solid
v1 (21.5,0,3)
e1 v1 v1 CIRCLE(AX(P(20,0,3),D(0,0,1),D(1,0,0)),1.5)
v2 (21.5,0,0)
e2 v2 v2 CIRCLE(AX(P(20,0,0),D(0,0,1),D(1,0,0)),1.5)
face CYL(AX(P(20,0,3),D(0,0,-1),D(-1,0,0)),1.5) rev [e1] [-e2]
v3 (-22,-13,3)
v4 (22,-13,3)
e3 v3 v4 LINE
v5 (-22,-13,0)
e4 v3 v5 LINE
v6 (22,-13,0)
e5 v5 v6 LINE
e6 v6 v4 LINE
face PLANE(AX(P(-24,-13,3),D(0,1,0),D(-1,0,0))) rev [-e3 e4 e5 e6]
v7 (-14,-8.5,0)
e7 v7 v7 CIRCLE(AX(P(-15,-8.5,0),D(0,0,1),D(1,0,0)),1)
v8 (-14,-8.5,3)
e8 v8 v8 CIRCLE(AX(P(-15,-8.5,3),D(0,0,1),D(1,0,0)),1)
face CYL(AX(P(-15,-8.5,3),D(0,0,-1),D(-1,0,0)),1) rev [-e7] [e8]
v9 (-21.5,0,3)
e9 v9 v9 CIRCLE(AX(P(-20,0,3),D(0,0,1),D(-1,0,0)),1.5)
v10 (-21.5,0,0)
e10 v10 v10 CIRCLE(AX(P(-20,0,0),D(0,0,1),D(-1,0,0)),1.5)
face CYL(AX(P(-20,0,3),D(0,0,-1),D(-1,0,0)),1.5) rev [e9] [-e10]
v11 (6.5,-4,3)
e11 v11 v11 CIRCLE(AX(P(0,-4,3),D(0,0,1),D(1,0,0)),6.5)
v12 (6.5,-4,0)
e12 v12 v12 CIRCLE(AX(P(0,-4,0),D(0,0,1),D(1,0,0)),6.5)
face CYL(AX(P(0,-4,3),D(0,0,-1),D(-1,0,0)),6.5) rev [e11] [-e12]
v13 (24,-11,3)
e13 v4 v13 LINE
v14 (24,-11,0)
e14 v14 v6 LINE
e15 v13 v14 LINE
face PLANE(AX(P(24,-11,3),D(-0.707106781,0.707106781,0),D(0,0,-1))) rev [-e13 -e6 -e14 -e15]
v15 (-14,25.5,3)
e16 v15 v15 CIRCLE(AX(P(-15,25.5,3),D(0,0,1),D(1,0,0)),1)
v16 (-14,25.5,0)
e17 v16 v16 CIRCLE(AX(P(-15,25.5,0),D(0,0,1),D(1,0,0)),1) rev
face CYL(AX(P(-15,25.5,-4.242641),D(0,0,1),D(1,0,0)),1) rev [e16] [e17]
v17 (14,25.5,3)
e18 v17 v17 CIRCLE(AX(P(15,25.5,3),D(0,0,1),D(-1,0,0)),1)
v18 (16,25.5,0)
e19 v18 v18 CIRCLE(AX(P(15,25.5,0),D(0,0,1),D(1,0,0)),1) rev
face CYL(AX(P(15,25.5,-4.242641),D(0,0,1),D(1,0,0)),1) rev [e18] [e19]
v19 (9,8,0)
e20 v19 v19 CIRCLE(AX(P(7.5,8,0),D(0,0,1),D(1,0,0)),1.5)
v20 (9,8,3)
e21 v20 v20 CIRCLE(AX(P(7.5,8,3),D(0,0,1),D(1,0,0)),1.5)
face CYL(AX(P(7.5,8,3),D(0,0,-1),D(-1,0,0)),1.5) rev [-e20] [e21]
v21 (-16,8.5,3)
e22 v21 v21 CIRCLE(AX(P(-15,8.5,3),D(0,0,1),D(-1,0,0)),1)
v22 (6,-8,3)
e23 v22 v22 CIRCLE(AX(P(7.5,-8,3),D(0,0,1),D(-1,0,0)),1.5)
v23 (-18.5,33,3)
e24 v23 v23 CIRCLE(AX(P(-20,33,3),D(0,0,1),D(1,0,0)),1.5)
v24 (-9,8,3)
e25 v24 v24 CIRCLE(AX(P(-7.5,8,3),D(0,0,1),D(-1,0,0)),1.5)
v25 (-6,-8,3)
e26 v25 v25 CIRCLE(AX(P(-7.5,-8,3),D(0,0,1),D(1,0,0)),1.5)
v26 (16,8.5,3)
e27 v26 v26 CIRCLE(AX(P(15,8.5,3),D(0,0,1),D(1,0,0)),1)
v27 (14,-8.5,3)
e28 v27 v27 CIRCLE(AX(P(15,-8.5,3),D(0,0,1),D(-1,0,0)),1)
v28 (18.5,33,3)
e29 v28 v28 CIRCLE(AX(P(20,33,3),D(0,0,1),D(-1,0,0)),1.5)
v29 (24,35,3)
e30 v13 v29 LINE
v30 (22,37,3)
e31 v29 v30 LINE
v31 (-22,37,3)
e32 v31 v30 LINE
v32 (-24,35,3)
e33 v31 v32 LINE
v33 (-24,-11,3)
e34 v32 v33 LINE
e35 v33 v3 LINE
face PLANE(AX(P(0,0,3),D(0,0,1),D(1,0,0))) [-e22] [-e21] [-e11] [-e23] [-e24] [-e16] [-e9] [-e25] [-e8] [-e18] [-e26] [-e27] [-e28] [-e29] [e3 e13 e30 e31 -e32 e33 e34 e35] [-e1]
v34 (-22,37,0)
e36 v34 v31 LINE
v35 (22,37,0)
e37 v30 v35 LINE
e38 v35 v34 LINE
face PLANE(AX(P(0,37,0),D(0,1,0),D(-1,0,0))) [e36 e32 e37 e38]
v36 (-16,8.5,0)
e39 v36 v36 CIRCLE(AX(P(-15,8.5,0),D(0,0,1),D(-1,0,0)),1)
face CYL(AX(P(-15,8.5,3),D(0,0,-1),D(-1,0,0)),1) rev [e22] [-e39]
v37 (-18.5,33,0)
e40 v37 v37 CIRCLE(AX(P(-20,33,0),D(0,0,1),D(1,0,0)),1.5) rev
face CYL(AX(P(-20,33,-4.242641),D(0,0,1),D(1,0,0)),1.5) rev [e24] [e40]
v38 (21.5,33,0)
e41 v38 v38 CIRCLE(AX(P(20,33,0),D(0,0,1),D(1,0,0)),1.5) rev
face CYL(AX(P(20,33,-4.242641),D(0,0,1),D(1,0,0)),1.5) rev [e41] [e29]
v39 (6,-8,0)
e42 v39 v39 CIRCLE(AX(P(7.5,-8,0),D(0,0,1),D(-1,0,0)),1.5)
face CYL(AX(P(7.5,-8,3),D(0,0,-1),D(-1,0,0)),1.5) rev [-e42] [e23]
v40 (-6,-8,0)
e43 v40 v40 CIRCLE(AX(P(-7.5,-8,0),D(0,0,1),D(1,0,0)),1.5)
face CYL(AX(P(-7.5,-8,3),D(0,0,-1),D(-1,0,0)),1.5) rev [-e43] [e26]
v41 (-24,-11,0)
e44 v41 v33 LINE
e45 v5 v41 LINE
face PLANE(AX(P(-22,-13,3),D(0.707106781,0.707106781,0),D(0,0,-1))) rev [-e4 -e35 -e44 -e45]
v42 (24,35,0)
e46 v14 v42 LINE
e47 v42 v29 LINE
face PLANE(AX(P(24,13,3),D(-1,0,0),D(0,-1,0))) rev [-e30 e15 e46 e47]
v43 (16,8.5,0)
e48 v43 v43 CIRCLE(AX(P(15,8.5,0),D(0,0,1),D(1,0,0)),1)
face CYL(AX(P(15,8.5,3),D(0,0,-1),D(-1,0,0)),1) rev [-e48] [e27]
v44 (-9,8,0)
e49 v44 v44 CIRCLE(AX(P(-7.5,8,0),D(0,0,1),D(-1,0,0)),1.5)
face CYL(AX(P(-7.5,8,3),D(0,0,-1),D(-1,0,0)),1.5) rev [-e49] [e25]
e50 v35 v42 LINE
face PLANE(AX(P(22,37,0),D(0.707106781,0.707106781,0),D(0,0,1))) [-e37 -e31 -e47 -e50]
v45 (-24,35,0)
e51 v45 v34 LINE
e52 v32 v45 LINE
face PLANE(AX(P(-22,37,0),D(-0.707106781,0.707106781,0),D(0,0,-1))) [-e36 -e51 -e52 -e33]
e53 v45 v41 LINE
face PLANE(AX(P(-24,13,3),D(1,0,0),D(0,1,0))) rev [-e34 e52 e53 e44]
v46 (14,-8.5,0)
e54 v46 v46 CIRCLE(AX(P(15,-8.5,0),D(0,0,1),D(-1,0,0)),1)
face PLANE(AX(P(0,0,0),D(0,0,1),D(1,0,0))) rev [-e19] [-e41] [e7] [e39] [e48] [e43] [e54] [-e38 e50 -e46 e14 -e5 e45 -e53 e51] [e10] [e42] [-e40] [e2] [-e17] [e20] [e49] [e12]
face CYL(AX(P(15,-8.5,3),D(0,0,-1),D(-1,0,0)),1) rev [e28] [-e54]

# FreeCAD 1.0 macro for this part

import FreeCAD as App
import Part
import Sketcher

V = App.Vector


def edges_at(feature, points):
    """Names of the edges that pass closest to the given points."""
    edges = feature.Shape.Edges
    near = lambda p: min(range(len(edges)), key=lambda i: edges[i].distToShape(Part.Vertex(*p))[0])
    return sorted({f"Edge{near(p) + 1}" for p in points})

doc = App.newDocument("Part")
body = doc.addObject("PartDesign::Body", "Body")

# Sketch on XY plane
sketch1 = body.newObject("Sketcher::SketchObject", "Sketch")
sketch1.AttachmentSupport = (doc.getObject("XY_Plane"), [""])
sketch1.MapMode = "FlatFace"
sketch1.addGeometry([
    Part.LineSegment(V(-24, 13, 0), V(-24, -13, 0)),  # 0
    Part.LineSegment(V(-24, -13, 0), V(24, -13, 0)),  # 1
    Part.LineSegment(V(24, -13, 0), V(24, 13, 0)),  # 2
    Part.LineSegment(V(24, 13, 0), V(-24, 13, 0)),  # 3
    Part.Circle(V(-15, -8.5, 0), V(0, 0, 1), 1),  # 4
    Part.Circle(V(-7.5, -8, 0), V(0, 0, 1), 1.5),  # 5
    Part.Circle(V(7.5, -8, 0), V(0, 0, 1), 1.5),  # 6
    Part.Circle(V(15, -8.5, 0), V(0, 0, 1), 1),  # 7
    Part.Circle(V(0, -4, 0), V(0, 0, 1), 6.5),  # 8
    Part.Circle(V(-20, 0, 0), V(0, 0, 1), 1.5),  # 9
    Part.Circle(V(-15, 8.5, 0), V(0, 0, 1), 1),  # 10
    Part.Circle(V(-7.5, 8, 0), V(0, 0, 1), 1.5),  # 11
    Part.Circle(V(20, 0, 0), V(0, 0, 1), 1.5),  # 12
    Part.Circle(V(7.5, 8, 0), V(0, 0, 1), 1.5),  # 13
    Part.Circle(V(15, 8.5, 0), V(0, 0, 1), 1),  # 14
], False)
sketch1.addConstraint([
    Sketcher.Constraint("Coincident", 0, 2, 1, 1),
    Sketcher.Constraint("Coincident", 1, 2, 2, 1),
    Sketcher.Constraint("Coincident", 2, 2, 3, 1),
    Sketcher.Constraint("Coincident", 3, 2, 0, 1),
    Sketcher.Constraint("Vertical", 0),
    Sketcher.Constraint("Horizontal", 1),
    Sketcher.Constraint("Vertical", 2),
    Sketcher.Constraint("Horizontal", 3),
    Sketcher.Constraint("Equal", 5, 6),
    Sketcher.Constraint("Equal", 4, 7),
    Sketcher.Constraint("Equal", 6, 9),
    Sketcher.Constraint("Equal", 7, 10),
    Sketcher.Constraint("Equal", 9, 11),
    Sketcher.Constraint("Equal", 11, 12),
    Sketcher.Constraint("Equal", 12, 13),
    Sketcher.Constraint("Equal", 10, 14),
    Sketcher.Constraint("Symmetric", 7, 3, 10, 3, -1, 1),
    Sketcher.Constraint("Symmetric", 6, 3, 11, 3, -1, 1),
    Sketcher.Constraint("Symmetric", 9, 3, 12, 3, -1, 1),
    Sketcher.Constraint("Symmetric", 5, 3, 13, 3, -1, 1),
    Sketcher.Constraint("Symmetric", 4, 3, 14, 3, -1, 1),
    Sketcher.Constraint("Symmetric", 0, 2, 2, 2, -1, 1),
    Sketcher.Constraint("Symmetric", 5, 3, 6, 3, -2),
    Sketcher.Constraint("Symmetric", 4, 3, 7, 3, -2),
    Sketcher.Constraint("PointOnObject", 8, 3, -2),
    Sketcher.Constraint("PointOnObject", 9, 3, -1),
    Sketcher.Constraint("Diameter", 4, 2.0),
    Sketcher.Constraint("Diameter", 5, 3.0),
    Sketcher.Constraint("Diameter", 8, 13.0),
    Sketcher.Constraint("DistanceX", 1, 1, 1, 2, 48.0),
    Sketcher.Constraint("DistanceY", 0, 2, 0, 1, 26.0),
    Sketcher.Constraint("DistanceX", 4, 3, -1, 1, 15.0),
    Sketcher.Constraint("DistanceY", 5, 3, -1, 1, 8.0),
    Sketcher.Constraint("DistanceY", 8, 3, -1, 1, 4.0),
    Sketcher.Constraint("DistanceX", 9, 3, -1, 1, 20.0),
    Sketcher.Constraint("DistanceX", 5, 3, 6, 3, 15.0),
    Sketcher.Constraint("DistanceY", 4, 3, 10, 3, 17.0),
])
pad1 = body.newObject("PartDesign::Pad", "Pad")
pad1.Profile = sketch1
pad1.Length = 3

# Sketch on XZ plane
sketch2 = body.newObject("Sketcher::SketchObject", "Sketch001")
sketch2.AttachmentSupport = (doc.getObject("XZ_Plane"), [""])
sketch2.MapMode = "FlatFace"
sketch2.AttachmentOffset = App.Placement(V(0, 0, -13), App.Rotation())
sketch2.addGeometry([
    Part.LineSegment(V(-24, 0, 0), V(-24, 3, 0)),
    Part.LineSegment(V(-24, 3, 0), V(24, 3, 0)),
    Part.LineSegment(V(24, 3, 0), V(24, 0, 0)),
    Part.LineSegment(V(24, 0, 0), V(-24, 0, 0)),
], False)
sketch2.addConstraint([
    Sketcher.Constraint("Coincident", 0, 2, 1, 1),
    Sketcher.Constraint("Coincident", 1, 2, 2, 1),
    Sketcher.Constraint("Coincident", 2, 2, 3, 1),
    Sketcher.Constraint("Coincident", 3, 2, 0, 1),
    Sketcher.Constraint("Vertical", 0),
    Sketcher.Constraint("Horizontal", 1),
    Sketcher.Constraint("Vertical", 2),
    Sketcher.Constraint("Horizontal", 3),
    Sketcher.Constraint("Symmetric", 2, 2, 3, 2, -1, 1),
    Sketcher.Constraint("DistanceX", 1, 1, 1, 2, 48.0),
    Sketcher.Constraint("DistanceY", 0, 1, 0, 2, 3.0),
])
pad2 = body.newObject("PartDesign::Pad", "Pad001")
pad2.Profile = sketch2
pad2.Length = 24
pad2.Reversed = True

# Sketch on XY plane
sketch3 = body.newObject("Sketcher::SketchObject", "Sketch002")
sketch3.AttachmentSupport = (doc.getObject("XY_Plane"), [""])
sketch3.MapMode = "FlatFace"
sketch3.AttachmentOffset = App.Placement(V(0, 0, 3), App.Rotation())
sketch3.addGeometry([
    Part.Circle(V(-15, 25.5, 0), V(0, 0, 1), 1),
    Part.Circle(V(-20, 33, 0), V(0, 0, 1), 1.5),
    Part.Circle(V(20, 33, 0), V(0, 0, 1), 1.5),
    Part.Circle(V(15, 25.5, 0), V(0, 0, 1), 1),
], False)
sketch3.addConstraint([
    Sketcher.Constraint("Equal", 1, 2),
    Sketcher.Constraint("Equal", 0, 3),
    Sketcher.Constraint("Symmetric", 1, 3, 2, 3, -2),
    Sketcher.Constraint("Symmetric", 0, 3, 3, 3, -2),
    Sketcher.Constraint("Diameter", 0, 2.0),
    Sketcher.Constraint("Diameter", 1, 3.0),
    Sketcher.Constraint("DistanceX", 0, 3, -1, 1, 15.0),
    Sketcher.Constraint("DistanceX", 1, 3, -1, 1, 20.0),
    Sketcher.Constraint("DistanceY", -1, 1, 1, 3, 33.0),
    Sketcher.Constraint("DistanceY", -1, 1, 0, 3, 25.5),
])
pocket1 = body.newObject("PartDesign::Pocket", "Pocket")
pocket1.Profile = sketch3
pocket1.Length = 3
doc.recompute()

chamfer = body.newObject("PartDesign::Chamfer", "Chamfer")
chamfer.Base = (pocket1, edges_at(pocket1, [
    (-24, 37, 1.5),
    (24, 37, 1.5),
    (24, -13, 1.5),
    (-24, -13, 1.5),
]))
chamfer.Size = 2

doc.recompute()
